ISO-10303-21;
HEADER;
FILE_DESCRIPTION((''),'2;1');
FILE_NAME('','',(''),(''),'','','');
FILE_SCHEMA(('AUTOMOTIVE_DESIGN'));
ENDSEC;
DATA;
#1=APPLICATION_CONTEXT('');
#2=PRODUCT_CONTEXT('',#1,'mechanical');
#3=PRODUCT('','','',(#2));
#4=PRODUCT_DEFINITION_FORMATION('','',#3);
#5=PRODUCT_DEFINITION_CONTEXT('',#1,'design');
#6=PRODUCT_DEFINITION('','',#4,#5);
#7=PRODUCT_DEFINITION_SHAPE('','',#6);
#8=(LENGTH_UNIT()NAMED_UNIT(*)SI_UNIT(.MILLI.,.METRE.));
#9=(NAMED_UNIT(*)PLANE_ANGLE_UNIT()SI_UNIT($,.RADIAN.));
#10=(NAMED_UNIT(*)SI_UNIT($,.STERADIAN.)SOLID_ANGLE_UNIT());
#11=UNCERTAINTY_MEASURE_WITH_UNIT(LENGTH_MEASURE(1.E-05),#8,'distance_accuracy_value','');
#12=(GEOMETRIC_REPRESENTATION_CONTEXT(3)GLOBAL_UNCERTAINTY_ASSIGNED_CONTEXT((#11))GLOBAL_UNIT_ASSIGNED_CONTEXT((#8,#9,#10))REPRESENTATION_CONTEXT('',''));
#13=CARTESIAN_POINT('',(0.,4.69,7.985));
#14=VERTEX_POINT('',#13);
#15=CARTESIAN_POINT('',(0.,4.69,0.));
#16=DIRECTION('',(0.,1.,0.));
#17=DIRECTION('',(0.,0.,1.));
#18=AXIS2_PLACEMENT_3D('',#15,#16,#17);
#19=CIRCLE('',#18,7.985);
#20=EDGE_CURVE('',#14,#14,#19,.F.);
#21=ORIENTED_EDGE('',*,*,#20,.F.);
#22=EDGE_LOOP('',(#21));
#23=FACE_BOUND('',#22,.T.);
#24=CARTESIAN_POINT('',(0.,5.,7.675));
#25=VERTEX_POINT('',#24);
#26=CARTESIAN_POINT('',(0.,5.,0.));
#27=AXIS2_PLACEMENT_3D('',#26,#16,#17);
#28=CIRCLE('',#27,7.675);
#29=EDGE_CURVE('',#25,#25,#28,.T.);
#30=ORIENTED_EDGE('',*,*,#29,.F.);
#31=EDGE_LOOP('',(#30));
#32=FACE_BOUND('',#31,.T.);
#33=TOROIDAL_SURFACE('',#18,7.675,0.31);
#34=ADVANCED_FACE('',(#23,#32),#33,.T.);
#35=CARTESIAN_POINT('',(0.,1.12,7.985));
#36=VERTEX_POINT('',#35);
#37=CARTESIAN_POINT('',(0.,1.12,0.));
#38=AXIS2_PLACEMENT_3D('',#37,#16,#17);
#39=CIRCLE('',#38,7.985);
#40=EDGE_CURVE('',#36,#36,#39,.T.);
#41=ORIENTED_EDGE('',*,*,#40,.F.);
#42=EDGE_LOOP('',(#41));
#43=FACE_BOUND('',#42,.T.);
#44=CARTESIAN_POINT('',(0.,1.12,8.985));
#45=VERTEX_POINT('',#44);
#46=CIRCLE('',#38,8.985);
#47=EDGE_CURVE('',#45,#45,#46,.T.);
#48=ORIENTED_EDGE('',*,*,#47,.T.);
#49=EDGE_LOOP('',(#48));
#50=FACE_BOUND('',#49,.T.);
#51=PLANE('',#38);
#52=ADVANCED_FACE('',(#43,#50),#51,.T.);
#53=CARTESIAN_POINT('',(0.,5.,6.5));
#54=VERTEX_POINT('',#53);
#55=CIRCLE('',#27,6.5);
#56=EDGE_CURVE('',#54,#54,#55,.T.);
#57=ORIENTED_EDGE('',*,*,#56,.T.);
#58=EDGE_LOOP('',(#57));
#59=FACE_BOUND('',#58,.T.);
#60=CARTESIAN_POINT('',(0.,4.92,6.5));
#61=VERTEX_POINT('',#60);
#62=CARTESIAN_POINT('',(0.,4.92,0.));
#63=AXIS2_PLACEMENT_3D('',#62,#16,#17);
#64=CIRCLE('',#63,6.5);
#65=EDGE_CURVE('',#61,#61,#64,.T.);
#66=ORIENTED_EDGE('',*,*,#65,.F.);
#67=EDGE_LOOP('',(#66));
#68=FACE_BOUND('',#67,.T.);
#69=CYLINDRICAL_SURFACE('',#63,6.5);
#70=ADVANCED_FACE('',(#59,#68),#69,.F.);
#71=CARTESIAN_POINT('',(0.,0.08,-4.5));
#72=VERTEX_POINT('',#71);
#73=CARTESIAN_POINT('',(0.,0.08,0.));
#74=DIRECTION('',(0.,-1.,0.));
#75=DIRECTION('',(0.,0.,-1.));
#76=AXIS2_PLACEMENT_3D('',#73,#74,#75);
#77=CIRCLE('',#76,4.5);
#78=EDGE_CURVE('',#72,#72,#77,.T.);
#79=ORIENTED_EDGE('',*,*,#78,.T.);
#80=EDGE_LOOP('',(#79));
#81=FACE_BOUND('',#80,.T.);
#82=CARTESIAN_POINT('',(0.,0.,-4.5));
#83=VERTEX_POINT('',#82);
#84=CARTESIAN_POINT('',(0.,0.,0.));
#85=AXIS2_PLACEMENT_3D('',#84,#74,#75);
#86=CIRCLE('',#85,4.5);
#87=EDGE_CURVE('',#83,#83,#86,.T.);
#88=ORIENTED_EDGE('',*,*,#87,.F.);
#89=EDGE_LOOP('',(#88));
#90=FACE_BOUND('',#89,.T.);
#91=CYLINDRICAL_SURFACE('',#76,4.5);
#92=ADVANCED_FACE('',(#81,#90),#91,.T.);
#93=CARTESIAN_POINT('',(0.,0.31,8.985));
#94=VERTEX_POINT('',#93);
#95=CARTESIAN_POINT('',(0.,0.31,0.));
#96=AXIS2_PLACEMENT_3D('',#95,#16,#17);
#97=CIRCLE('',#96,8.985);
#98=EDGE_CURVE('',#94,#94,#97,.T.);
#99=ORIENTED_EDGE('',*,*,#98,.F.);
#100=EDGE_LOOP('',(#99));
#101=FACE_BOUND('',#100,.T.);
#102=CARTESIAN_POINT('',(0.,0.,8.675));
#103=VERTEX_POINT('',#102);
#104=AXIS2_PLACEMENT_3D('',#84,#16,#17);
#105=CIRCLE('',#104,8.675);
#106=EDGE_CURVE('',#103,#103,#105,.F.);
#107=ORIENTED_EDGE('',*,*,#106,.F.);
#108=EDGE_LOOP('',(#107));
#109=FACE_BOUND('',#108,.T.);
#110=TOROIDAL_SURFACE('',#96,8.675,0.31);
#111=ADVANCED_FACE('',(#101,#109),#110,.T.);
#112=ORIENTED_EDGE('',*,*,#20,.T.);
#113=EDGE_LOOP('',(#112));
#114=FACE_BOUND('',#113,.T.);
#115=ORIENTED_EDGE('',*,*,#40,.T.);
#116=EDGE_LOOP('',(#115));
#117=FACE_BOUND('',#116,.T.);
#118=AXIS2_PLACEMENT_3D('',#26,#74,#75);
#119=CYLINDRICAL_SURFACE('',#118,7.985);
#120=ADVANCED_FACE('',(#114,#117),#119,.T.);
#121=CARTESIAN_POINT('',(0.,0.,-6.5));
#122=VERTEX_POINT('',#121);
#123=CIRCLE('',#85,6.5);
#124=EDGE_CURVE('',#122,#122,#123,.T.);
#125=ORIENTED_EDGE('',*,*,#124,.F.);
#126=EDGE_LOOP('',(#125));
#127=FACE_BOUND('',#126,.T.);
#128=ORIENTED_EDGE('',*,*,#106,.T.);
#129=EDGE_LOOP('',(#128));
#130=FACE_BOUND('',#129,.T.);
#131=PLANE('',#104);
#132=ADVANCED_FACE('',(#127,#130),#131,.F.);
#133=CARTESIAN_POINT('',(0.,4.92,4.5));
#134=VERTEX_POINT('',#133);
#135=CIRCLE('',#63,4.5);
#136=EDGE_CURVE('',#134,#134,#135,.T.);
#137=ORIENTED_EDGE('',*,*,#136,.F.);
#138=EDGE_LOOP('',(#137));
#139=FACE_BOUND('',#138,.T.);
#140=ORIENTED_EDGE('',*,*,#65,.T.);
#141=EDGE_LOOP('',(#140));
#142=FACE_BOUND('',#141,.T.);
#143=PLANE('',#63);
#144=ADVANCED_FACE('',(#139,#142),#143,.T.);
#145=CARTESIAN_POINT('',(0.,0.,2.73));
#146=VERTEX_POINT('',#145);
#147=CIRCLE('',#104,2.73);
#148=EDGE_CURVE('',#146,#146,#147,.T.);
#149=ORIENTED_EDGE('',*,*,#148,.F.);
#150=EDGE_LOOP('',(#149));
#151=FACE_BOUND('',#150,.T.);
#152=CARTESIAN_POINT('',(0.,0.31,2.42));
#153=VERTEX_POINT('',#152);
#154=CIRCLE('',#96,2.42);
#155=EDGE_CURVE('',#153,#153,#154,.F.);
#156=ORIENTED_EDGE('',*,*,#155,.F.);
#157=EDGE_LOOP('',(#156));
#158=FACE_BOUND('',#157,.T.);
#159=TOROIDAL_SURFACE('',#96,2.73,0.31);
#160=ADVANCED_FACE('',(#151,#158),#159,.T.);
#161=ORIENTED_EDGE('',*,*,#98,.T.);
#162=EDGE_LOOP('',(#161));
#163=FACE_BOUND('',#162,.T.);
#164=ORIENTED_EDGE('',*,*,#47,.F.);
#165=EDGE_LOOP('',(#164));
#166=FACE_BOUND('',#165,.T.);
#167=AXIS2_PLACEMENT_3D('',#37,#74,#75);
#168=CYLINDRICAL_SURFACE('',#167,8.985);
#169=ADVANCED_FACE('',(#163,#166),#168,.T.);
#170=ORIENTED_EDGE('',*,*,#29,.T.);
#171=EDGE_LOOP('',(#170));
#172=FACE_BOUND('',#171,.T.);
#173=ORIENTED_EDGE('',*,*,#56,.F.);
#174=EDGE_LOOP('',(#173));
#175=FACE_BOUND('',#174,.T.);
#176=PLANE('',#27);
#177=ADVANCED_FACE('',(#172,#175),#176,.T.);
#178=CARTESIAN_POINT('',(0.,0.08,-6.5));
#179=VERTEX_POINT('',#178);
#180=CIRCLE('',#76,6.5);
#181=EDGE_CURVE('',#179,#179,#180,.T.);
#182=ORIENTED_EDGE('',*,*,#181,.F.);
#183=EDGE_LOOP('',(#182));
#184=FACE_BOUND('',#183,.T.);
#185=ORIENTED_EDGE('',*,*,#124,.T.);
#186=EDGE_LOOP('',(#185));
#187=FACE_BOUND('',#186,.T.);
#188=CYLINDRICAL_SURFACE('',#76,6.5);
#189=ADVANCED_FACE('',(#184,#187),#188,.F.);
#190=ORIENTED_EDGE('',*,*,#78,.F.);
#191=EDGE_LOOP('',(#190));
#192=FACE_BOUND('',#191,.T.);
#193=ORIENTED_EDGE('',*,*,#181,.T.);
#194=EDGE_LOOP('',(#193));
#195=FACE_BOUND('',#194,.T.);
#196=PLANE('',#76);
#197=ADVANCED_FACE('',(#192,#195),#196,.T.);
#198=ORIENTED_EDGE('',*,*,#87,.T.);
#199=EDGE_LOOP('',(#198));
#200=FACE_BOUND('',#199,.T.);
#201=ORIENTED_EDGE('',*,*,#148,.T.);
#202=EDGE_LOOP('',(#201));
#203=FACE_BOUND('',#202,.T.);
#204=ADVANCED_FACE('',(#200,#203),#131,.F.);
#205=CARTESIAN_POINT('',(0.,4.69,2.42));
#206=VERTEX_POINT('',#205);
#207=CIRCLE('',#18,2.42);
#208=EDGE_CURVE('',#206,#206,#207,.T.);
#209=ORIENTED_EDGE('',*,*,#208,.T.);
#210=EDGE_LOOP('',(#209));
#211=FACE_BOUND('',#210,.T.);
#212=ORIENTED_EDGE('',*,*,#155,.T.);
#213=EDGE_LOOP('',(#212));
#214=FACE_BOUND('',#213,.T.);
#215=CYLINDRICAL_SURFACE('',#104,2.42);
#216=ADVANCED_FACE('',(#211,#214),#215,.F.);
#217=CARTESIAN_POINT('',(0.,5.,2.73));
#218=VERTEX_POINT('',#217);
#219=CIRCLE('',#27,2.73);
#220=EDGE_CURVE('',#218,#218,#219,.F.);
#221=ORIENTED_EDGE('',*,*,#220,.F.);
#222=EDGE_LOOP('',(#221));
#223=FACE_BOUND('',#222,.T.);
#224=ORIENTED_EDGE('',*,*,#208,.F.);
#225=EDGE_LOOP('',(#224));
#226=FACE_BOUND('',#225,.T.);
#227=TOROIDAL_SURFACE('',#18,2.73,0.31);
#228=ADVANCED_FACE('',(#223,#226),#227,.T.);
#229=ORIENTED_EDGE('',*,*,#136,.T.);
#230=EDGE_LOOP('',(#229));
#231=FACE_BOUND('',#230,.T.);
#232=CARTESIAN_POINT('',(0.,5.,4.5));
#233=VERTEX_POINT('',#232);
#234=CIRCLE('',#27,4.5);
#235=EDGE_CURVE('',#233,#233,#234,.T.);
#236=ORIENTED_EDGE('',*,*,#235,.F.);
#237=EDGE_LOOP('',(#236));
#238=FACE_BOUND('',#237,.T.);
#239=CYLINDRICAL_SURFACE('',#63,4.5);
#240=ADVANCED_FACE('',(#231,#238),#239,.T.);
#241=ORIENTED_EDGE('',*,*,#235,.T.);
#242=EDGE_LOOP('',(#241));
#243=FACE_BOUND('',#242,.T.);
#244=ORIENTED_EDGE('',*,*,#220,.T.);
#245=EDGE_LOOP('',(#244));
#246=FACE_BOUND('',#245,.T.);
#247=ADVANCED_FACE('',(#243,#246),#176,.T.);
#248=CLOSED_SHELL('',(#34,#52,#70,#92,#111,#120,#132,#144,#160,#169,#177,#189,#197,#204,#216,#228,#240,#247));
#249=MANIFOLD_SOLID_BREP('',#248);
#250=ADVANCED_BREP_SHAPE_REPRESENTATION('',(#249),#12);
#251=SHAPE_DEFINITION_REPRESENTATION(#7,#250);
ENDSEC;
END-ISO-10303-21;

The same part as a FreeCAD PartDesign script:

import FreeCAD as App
import Part
import Sketcher


def edges_at(feature, points):
    """Names of the edges that pass closest to the given points."""
    edges = feature.Shape.Edges
    near = lambda p: min(range(len(edges)), key=lambda i: edges[i].distToShape(Part.Vertex(*p))[0])
    return sorted({f"Edge{near(p) + 1}" for p in points})

doc = App.newDocument("Part")
params = doc.addObject("Spreadsheet::Sheet", "Params")
for row, (alias, value) in enumerate([
    ("sketch1_diameter", "17.97 mm"),
    ("pad1_length", "1.12 mm"),
    ("sketch2_diameter", "15.97 mm"),
    ("pad2_length", "3.88 mm"),
    ("sketch3_diameter", "4.84 mm"),
    ("sketch4_diameter", "13 mm"),
    ("sketch4_diameter2", "9 mm"),
    ("pocket2_length", "0.08 mm"),
    ("sketch5_diameter", "13 mm"),
    ("sketch5_diameter2", "9 mm"),
    ("pocket3_length", "0.08 mm"),
    ("fillet_radius", "0.31 mm"),
], start=1):
    params.set(f"A{row}", alias)
    params.set(f"B{row}", "=" + value)
    params.setAlias(f"B{row}", alias)

body = doc.addObject("PartDesign::Body", "Body")

sketch1 = body.newObject("Sketcher::SketchObject", "Sketch")
sketch1.AttachmentSupport = (doc.getObject("XZ_Plane"), [""])
sketch1.MapMode = "FlatFace"
sketch1.addGeometry(Part.Circle(App.Vector(0, 0, 0), App.Vector(0, 0, 1), 9), False)
sketch1.addConstraint([
    Sketcher.Constraint("Coincident", 0, 3, -1, 1),
    Sketcher.Constraint("Diameter", 0, 17.97),
])
sketch1.setExpression("Constraints[1]", "Params.sketch1_diameter")
pad1 = body.newObject("PartDesign::Pad", "Pad")
pad1.Profile = sketch1
pad1.setExpression("Length", "Params.pad1_length")
pad1.Reversed = True

sketch2 = body.newObject("Sketcher::SketchObject", "Sketch001")
sketch2.AttachmentSupport = (doc.getObject("XZ_Plane"), [""])
sketch2.MapMode = "FlatFace"
sketch2.AttachmentOffset = App.Placement(App.Vector(0, 0, -1.12), App.Rotation())
sketch2.addGeometry(Part.Circle(App.Vector(0, 0, 0), App.Vector(0, 0, 1), 8), False)
sketch2.addConstraint([
    Sketcher.Constraint("Coincident", 0, 3, -1, 1),
    Sketcher.Constraint("Diameter", 0, 15.97),
])
sketch2.setExpression("Constraints[1]", "Params.sketch2_diameter")
pad2 = body.newObject("PartDesign::Pad", "Pad001")
pad2.Profile = sketch2
pad2.setExpression("Length", "Params.pad2_length")
pad2.Reversed = True

sketch3 = body.newObject("Sketcher::SketchObject", "Sketch002")
sketch3.AttachmentSupport = (doc.getObject("XZ_Plane"), [""])
sketch3.MapMode = "FlatFace"
sketch3.AttachmentOffset = App.Placement(App.Vector(0, 0, -5), App.Rotation())
sketch3.addGeometry(Part.Circle(App.Vector(0, 0, 0), App.Vector(0, 0, 1), 2.4), False)
sketch3.addConstraint([
    Sketcher.Constraint("Coincident", 0, 3, -1, 1),
    Sketcher.Constraint("Diameter", 0, 4.84),
])
sketch3.setExpression("Constraints[1]", "Params.sketch3_diameter")
pocket1 = body.newObject("PartDesign::Pocket", "Pocket")
pocket1.Profile = sketch3
pocket1.Type = "ThroughAll"
pocket1.Reversed = True

sketch4 = body.newObject("Sketcher::SketchObject", "Sketch003")
sketch4.AttachmentSupport = (doc.getObject("XZ_Plane"), [""])
sketch4.MapMode = "FlatFace"
sketch4.addGeometry([
    Part.Circle(App.Vector(0, 0, 0), App.Vector(0, 0, 1), 6.5),
    Part.Circle(App.Vector(0, 0, 0), App.Vector(0, 0, 1), 4.5),
], False)
sketch4.addConstraint([
    Sketcher.Constraint("Coincident", 0, 3, -1, 1),
    Sketcher.Constraint("Coincident", 1, 3, -1, 1),
    Sketcher.Constraint("Diameter", 0, 13.0),
    Sketcher.Constraint("Diameter", 1, 9.0),
])
sketch4.setExpression("Constraints[2]", "Params.sketch4_diameter")
sketch4.setExpression("Constraints[3]", "Params.sketch4_diameter2")
pocket2 = body.newObject("PartDesign::Pocket", "Pocket001")
pocket2.Profile = sketch4
pocket2.setExpression("Length", "Params.pocket2_length")

sketch5 = body.newObject("Sketcher::SketchObject", "Sketch004")
sketch5.AttachmentSupport = (doc.getObject("XZ_Plane"), [""])
sketch5.MapMode = "FlatFace"
sketch5.AttachmentOffset = App.Placement(App.Vector(0, 0, -5), App.Rotation())
sketch5.addGeometry([
    Part.Circle(App.Vector(0, 0, 0), App.Vector(0, 0, 1), 6.5),
    Part.Circle(App.Vector(0, 0, 0), App.Vector(0, 0, 1), 4.5),
], False)
sketch5.addConstraint([
    Sketcher.Constraint("Coincident", 0, 3, -1, 1),
    Sketcher.Constraint("Coincident", 1, 3, -1, 1),
    Sketcher.Constraint("Diameter", 0, 13.0),
    Sketcher.Constraint("Diameter", 1, 9.0),
])
sketch5.setExpression("Constraints[2]", "Params.sketch5_diameter")
sketch5.setExpression("Constraints[3]", "Params.sketch5_diameter2")
pocket3 = body.newObject("PartDesign::Pocket", "Pocket002")
pocket3.Profile = sketch5
pocket3.setExpression("Length", "Params.pocket3_length")
pocket3.Reversed = True
doc.recompute()

fillet = body.newObject("PartDesign::Fillet", "Fillet")
fillet.Base = (pocket3, edges_at(pocket3, [
    (-2.42, 0, 0),
    (-2.42, 5, 0),
    (-8.985, 0, 0),
    (-7.985, 5, 0),
]))
fillet.setExpression("Radius", "Params.fillet_radius")

doc.recompute()
